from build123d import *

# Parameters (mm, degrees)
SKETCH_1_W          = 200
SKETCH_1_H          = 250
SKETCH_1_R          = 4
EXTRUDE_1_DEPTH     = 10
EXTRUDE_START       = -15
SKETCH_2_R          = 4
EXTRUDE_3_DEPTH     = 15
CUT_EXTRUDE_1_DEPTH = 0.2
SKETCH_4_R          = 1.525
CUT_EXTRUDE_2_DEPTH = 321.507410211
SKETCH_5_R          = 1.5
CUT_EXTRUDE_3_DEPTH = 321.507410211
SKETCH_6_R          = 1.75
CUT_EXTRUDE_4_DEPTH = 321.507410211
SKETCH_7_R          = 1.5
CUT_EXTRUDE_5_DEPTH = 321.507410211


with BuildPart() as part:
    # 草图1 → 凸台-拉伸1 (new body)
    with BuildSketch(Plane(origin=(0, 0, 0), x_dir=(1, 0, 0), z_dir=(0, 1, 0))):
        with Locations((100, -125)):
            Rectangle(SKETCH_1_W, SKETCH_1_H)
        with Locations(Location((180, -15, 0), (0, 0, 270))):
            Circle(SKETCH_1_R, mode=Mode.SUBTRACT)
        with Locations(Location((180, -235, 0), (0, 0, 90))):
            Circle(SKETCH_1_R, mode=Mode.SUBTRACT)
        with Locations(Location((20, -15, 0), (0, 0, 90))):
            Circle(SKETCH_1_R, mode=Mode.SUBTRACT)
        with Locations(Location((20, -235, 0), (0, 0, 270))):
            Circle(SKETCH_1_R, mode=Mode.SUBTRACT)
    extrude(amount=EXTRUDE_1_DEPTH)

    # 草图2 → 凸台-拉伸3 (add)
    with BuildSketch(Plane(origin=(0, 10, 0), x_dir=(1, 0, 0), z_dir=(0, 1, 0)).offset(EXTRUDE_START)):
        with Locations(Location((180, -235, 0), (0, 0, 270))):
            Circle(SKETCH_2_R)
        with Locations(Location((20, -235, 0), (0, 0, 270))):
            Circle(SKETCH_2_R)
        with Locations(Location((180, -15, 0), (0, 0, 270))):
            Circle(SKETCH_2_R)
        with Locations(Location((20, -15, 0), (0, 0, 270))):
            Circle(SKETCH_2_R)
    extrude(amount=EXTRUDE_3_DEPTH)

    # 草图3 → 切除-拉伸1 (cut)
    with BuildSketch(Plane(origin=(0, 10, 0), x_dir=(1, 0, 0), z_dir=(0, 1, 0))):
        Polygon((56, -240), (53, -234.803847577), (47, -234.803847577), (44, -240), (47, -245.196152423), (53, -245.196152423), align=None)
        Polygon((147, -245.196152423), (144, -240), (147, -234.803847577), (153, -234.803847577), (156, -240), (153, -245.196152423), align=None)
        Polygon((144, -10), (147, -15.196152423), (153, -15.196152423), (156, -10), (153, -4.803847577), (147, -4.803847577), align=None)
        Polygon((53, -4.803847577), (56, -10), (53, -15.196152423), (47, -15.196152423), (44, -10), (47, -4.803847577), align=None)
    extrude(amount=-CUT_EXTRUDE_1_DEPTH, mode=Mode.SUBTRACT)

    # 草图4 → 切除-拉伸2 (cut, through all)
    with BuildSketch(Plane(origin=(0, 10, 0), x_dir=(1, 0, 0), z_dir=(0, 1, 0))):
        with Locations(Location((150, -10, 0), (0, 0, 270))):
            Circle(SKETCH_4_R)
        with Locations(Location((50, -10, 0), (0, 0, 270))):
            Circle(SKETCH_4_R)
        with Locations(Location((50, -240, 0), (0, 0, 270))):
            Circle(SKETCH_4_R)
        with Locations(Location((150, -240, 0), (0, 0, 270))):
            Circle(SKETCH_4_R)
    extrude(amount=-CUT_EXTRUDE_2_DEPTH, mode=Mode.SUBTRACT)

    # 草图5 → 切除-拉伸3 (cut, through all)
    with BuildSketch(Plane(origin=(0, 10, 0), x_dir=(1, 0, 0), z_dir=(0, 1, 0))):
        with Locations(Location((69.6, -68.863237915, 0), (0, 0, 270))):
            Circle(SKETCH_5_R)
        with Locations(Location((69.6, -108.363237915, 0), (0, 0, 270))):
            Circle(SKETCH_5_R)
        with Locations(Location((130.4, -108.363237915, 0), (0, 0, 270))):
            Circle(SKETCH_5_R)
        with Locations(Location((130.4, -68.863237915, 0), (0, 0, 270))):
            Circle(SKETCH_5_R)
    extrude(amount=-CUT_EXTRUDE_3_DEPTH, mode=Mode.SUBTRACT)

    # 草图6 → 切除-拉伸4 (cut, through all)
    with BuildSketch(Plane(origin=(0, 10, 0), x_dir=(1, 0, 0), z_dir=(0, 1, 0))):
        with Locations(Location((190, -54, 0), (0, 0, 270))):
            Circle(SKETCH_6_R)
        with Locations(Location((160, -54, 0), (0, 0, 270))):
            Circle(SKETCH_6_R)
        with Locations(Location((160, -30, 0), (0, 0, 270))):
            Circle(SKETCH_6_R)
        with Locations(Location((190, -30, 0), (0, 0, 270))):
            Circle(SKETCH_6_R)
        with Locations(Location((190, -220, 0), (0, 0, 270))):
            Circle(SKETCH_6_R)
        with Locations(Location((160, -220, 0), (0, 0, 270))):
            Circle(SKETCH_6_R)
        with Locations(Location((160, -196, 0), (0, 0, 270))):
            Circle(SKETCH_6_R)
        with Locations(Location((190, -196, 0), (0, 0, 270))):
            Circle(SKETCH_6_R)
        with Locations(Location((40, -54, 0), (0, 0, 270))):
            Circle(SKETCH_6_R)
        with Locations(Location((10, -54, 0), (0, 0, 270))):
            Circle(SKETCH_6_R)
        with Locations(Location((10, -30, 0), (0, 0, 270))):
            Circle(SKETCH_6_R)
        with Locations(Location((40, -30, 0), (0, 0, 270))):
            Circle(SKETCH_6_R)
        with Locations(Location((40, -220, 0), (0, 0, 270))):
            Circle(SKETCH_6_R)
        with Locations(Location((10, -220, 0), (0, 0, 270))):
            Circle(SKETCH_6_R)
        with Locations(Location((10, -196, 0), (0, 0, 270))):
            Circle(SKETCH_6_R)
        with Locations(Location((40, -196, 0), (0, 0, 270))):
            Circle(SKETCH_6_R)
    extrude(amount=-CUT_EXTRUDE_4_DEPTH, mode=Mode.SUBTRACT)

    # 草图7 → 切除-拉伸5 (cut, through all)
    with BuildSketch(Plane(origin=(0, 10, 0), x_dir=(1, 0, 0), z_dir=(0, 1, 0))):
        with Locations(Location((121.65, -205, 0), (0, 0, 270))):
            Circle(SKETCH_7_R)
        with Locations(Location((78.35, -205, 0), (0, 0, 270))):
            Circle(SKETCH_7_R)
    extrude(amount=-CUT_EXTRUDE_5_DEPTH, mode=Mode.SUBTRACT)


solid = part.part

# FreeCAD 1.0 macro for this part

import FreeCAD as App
import Part
import Sketcher

V = App.Vector
Q = App.Units.Quantity


def add_polygon(sketch, points):
    """Adds a closed chain of lines whose ends are joined by coincident constraints."""
    first, n = sketch.GeometryCount, len(points)
    for a, b in zip(points, points[1:] + points[:1]):
        sketch.addGeometry(Part.LineSegment(App.Vector(*a, 0), App.Vector(*b, 0)), False)
    for i in range(n):
        sketch.addConstraint(Sketcher.Constraint("Coincident", first + i, 2, first + (i + 1) % n, 1))

doc = App.newDocument("Part")
body = doc.addObject("PartDesign::Body", "Body")

sketch1 = body.newObject("Sketcher::SketchObject", "Sketch")
sketch1.AttachmentSupport = (doc.getObject("XZ_Plane"), [""])
sketch1.MapMode = "FlatFace"
add_polygon(sketch1, [(0, 0), (0, 250), (200, 250), (200, 0)])
sketch1.addGeometry(Part.Circle(V(20, 235, 0), V(0, 0, 1), 4), False)
sketch1.addGeometry(Part.Circle(V(180, 235, 0), V(0, 0, 1), 4), False)
sketch1.addGeometry(Part.Circle(V(20, 15, 0), V(0, 0, 1), 4), False)
sketch1.addGeometry(Part.Circle(V(180, 15, 0), V(0, 0, 1), 4), False)
sketch1.addConstraint([
    Sketcher.Constraint("Vertical", 0),
    Sketcher.Constraint("Horizontal", 1),
    Sketcher.Constraint("Vertical", 2),
    Sketcher.Constraint("Horizontal", 3),
    Sketcher.Constraint("Coincident", 3, 2, -1, 1),
    Sketcher.Constraint("Equal", 4, 5),
    Sketcher.Constraint("Equal", 5, 6),
    Sketcher.Constraint("Equal", 6, 7),
    Sketcher.Constraint("Horizontal", 4, 3, 5, 3),
    Sketcher.Constraint("Horizontal", 6, 3, 7, 3),
    Sketcher.Constraint("Vertical", 4, 3, 6, 3),
    Sketcher.Constraint("Vertical", 5, 3, 7, 3),
    Sketcher.Constraint("Diameter", 4, Q("8 mm")),
    Sketcher.Constraint("DistanceX", 1, 1, 1, 2, Q("200 mm")),
    Sketcher.Constraint("DistanceY", 0, 1, 0, 2, Q("250 mm")),
    Sketcher.Constraint("DistanceX", -1, 1, 4, 3, Q("20 mm")),
    Sketcher.Constraint("DistanceY", -1, 1, 4, 3, Q("235 mm")),
    Sketcher.Constraint("DistanceX", -1, 1, 5, 3, Q("180 mm")),
    Sketcher.Constraint("DistanceY", -1, 1, 6, 3, Q("15 mm")),
])
pad1 = body.newObject("PartDesign::Pad", "Pad")
pad1.Profile = sketch1
pad1.Length = 10
pad1.Reversed = True

sketch2 = body.newObject("Sketcher::SketchObject", "Sketch001")
sketch2.AttachmentSupport = (doc.getObject("XZ_Plane"), [""])
sketch2.MapMode = "FlatFace"
sketch2.AttachmentOffset = App.Placement(V(0, 0, 5), App.Rotation())
sketch2.addGeometry([
    Part.Circle(V(180, 235, 0), V(0, 0, 1), 4),
    Part.Circle(V(20, 235, 0), V(0, 0, 1), 4),
    Part.Circle(V(180, 15, 0), V(0, 0, 1), 4),
    Part.Circle(V(20, 15, 0), V(0, 0, 1), 4),
], False)
sketch2.addConstraint([
    Sketcher.Constraint("Equal", 0, 1),
    Sketcher.Constraint("Equal", 1, 2),
    Sketcher.Constraint("Equal", 2, 3),
    Sketcher.Constraint("Horizontal", 0, 3, 1, 3),
    Sketcher.Constraint("Horizontal", 2, 3, 3, 3),
    Sketcher.Constraint("Vertical", 0, 3, 2, 3),
    Sketcher.Constraint("Vertical", 1, 3, 3, 3),
    Sketcher.Constraint("Diameter", 0, Q("8 mm")),
    Sketcher.Constraint("DistanceX", -1, 1, 0, 3, Q("180 mm")),
    Sketcher.Constraint("DistanceY", -1, 1, 0, 3, Q("235 mm")),
    Sketcher.Constraint("DistanceX", -1, 1, 1, 3, Q("20 mm")),
    Sketcher.Constraint("DistanceY", -1, 1, 2, 3, Q("15 mm")),
])
pad2 = body.newObject("PartDesign::Pad", "Pad001")
pad2.Profile = sketch2
pad2.Length = 15
pad2.Reversed = True

sketch3 = body.newObject("Sketcher::SketchObject", "Sketch002")
sketch3.AttachmentSupport = (doc.getObject("XZ_Plane"), [""])
sketch3.MapMode = "FlatFace"
sketch3.AttachmentOffset = App.Placement(V(0, 0, -10), App.Rotation())
add_polygon(sketch3, [(56, 240), (53, 234.803848), (47, 234.803848), (44, 240), (47, 245.196152), (53, 245.196152)])
add_polygon(sketch3, [(144, 240), (147, 245.196152), (153, 245.196152), (156, 240), (153, 234.803848), (147, 234.803848)])
add_polygon(sketch3, [(144, 10), (147, 15.196152), (153, 15.196152), (156, 10), (153, 4.803848), (147, 4.803848)])
add_polygon(sketch3, [(56, 10), (53, 4.803848), (47, 4.803848), (44, 10), (47, 15.196152), (53, 15.196152)])
sketch3.addConstraint([
    Sketcher.Constraint("Horizontal", 1),
    Sketcher.Constraint("Horizontal", 4),
    Sketcher.Constraint("Horizontal", 7),
    Sketcher.Constraint("Horizontal", 10),
    Sketcher.Constraint("Horizontal", 13),
    Sketcher.Constraint("Horizontal", 16),
    Sketcher.Constraint("Horizontal", 19),
    Sketcher.Constraint("Horizontal", 22),
    Sketcher.Constraint("Parallel", 0, 3),
    Sketcher.Constraint("Parallel", 2, 5),
    Sketcher.Constraint("Parallel", 3, 6),
    Sketcher.Constraint("Parallel", 5, 8),
    Sketcher.Constraint("Parallel", 6, 9),
    Sketcher.Constraint("Parallel", 8, 11),
    Sketcher.Constraint("Parallel", 9, 12),
    Sketcher.Constraint("Parallel", 11, 14),
    Sketcher.Constraint("Parallel", 12, 15),
    Sketcher.Constraint("Parallel", 14, 17),
    Sketcher.Constraint("Parallel", 15, 18),
    Sketcher.Constraint("Parallel", 17, 20),
    Sketcher.Constraint("Parallel", 18, 21),
    Sketcher.Constraint("Parallel", 20, 23),
    Sketcher.Constraint("Horizontal", 2, 2, 5, 2),
    Sketcher.Constraint("Horizontal", 4, 2, 6, 2),
    Sketcher.Constraint("Horizontal", 5, 2, 8, 2),
    Sketcher.Constraint("Horizontal", 1, 2, 9, 2),
    Sketcher.Constraint("Horizontal", 8, 2, 11, 2),
    Sketcher.Constraint("Horizontal", 14, 2, 17, 2),
    Sketcher.Constraint("Horizontal", 16, 2, 18, 2),
    Sketcher.Constraint("Horizontal", 17, 2, 20, 2),
    Sketcher.Constraint("Horizontal", 13, 2, 21, 2),
    Sketcher.Constraint("Horizontal", 20, 2, 23, 2),
    Sketcher.Constraint("Vertical", 1, 2, 3, 2),
    Sketcher.Constraint("Vertical", 0, 2, 4, 2),
    Sketcher.Constraint("Vertical", 10, 2, 12, 2),
    Sketcher.Constraint("Vertical", 9, 2, 13, 2),
    Sketcher.Constraint("Vertical", 8, 2, 14, 2),
    Sketcher.Constraint("Vertical", 13, 2, 15, 2),
    Sketcher.Constraint("Vertical", 4, 2, 18, 2),
    Sketcher.Constraint("Vertical", 3, 2, 19, 2),
    Sketcher.Constraint("Equal", 4, 7),
    Sketcher.Constraint("DistanceX", 1, 2, 1, 1, Q("6 mm")),
    Sketcher.Constraint("Angle", 0, Q("-120 deg")),
    Sketcher.Constraint("Distance", 0, Q("6 mm")),
    Sketcher.Constraint("DistanceX", -1, 1, 0, 2, Q("53 mm")),
    Sketcher.Constraint("DistanceY", -1, 1, 2, 2, Q("240 mm")),
    Sketcher.Constraint("DistanceX", -1, 1, 6, 2, Q("147 mm")),
    Sketcher.Constraint("DistanceY", -1, 1, 14, 2, Q("10 mm")),
])
pocket1 = body.newObject("PartDesign::Pocket", "Pocket")
pocket1.Profile = sketch3
pocket1.Length = 0.2
pocket1.Reversed = True

sketch4 = body.newObject("Sketcher::SketchObject", "Sketch003")
sketch4.AttachmentSupport = (doc.getObject("XZ_Plane"), [""])
sketch4.MapMode = "FlatFace"
sketch4.AttachmentOffset = App.Placement(V(0, 0, -10), App.Rotation())
sketch4.addGeometry([
    Part.Circle(V(150, 10, 0), V(0, 0, 1), 1.525),
    Part.Circle(V(50, 10, 0), V(0, 0, 1), 1.525),
    Part.Circle(V(50, 240, 0), V(0, 0, 1), 1.525),
    Part.Circle(V(150, 240, 0), V(0, 0, 1), 1.525),
], False)
sketch4.addConstraint([
    Sketcher.Constraint("Equal", 0, 1),
    Sketcher.Constraint("Equal", 1, 2),
    Sketcher.Constraint("Equal", 2, 3),
    Sketcher.Constraint("Horizontal", 0, 3, 1, 3),
    Sketcher.Constraint("Horizontal", 2, 3, 3, 3),
    Sketcher.Constraint("Vertical", 1, 3, 2, 3),
    Sketcher.Constraint("Vertical", 0, 3, 3, 3),
    Sketcher.Constraint("Diameter", 0, Q("3.05 mm")),
    Sketcher.Constraint("DistanceX", -1, 1, 0, 3, Q("150 mm")),
    Sketcher.Constraint("DistanceY", -1, 1, 0, 3, Q("10 mm")),
    Sketcher.Constraint("DistanceX", -1, 1, 1, 3, Q("50 mm")),
    Sketcher.Constraint("DistanceY", -1, 1, 2, 3, Q("240 mm")),
])
pocket2 = body.newObject("PartDesign::Pocket", "Pocket001")
pocket2.Profile = sketch4
pocket2.Type = "ThroughAll"
pocket2.Reversed = True

sketch5 = body.newObject("Sketcher::SketchObject", "Sketch004")
sketch5.AttachmentSupport = (doc.getObject("XZ_Plane"), [""])
sketch5.MapMode = "FlatFace"
sketch5.AttachmentOffset = App.Placement(V(0, 0, -10), App.Rotation())
sketch5.addGeometry([
    Part.Circle(V(69.6, 68.863238, 0), V(0, 0, 1), 1.5),
    Part.Circle(V(69.6, 108.363238, 0), V(0, 0, 1), 1.5),
    Part.Circle(V(130.4, 108.363238, 0), V(0, 0, 1), 1.5),
    Part.Circle(V(130.4, 68.863238, 0), V(0, 0, 1), 1.5),
], False)
sketch5.addConstraint([
    Sketcher.Constraint("Equal", 0, 1),
    Sketcher.Constraint("Equal", 1, 2),
    Sketcher.Constraint("Equal", 2, 3),
    Sketcher.Constraint("Horizontal", 1, 3, 2, 3),
    Sketcher.Constraint("Horizontal", 0, 3, 3, 3),
    Sketcher.Constraint("Vertical", 0, 3, 1, 3),
    Sketcher.Constraint("Vertical", 2, 3, 3, 3),
    Sketcher.Constraint("Diameter", 0, Q("3 mm")),
    Sketcher.Constraint("DistanceX", -1, 1, 0, 3, Q("69.6 mm")),
    Sketcher.Constraint("DistanceX", -1, 1, 2, 3, Q("130.4 mm")),
    Sketcher.Constraint("DistanceY", 0, 3, 1, 3, Q("39.5 mm")),
    Sketcher.Constraint("DistanceY", -1, 1, 0, 3, Q("68.863238 mm")),
])
pocket3 = body.newObject("PartDesign::Pocket", "Pocket002")
pocket3.Profile = sketch5
pocket3.Type = "ThroughAll"
pocket3.Reversed = True

sketch6 = body.newObject("Sketcher::SketchObject", "Sketch005")
sketch6.AttachmentSupport = (doc.getObject("XZ_Plane"), [""])
sketch6.MapMode = "FlatFace"
sketch6.AttachmentOffset = App.Placement(V(0, 0, -10), App.Rotation())
sketch6.addGeometry([
    Part.Circle(V(190, 54, 0), V(0, 0, 1), 1.75),
    Part.Circle(V(160, 54, 0), V(0, 0, 1), 1.75),
    Part.Circle(V(160, 30, 0), V(0, 0, 1), 1.75),
    Part.Circle(V(190, 30, 0), V(0, 0, 1), 1.75),
    Part.Circle(V(190, 220, 0), V(0, 0, 1), 1.75),
    Part.Circle(V(160, 220, 0), V(0, 0, 1), 1.75),
    Part.Circle(V(160, 196, 0), V(0, 0, 1), 1.75),
    Part.Circle(V(190, 196, 0), V(0, 0, 1), 1.75),
    Part.Circle(V(40, 54, 0), V(0, 0, 1), 1.75),
    Part.Circle(V(10, 54, 0), V(0, 0, 1), 1.75),
    Part.Circle(V(10, 30, 0), V(0, 0, 1), 1.75),
    Part.Circle(V(40, 30, 0), V(0, 0, 1), 1.75),
    Part.Circle(V(40, 220, 0), V(0, 0, 1), 1.75),
    Part.Circle(V(10, 220, 0), V(0, 0, 1), 1.75),
    Part.Circle(V(10, 196, 0), V(0, 0, 1), 1.75),
    Part.Circle(V(40, 196, 0), V(0, 0, 1), 1.75),
], False)
sketch6.addConstraint([
    Sketcher.Constraint("Equal", 0, 1),
    Sketcher.Constraint("Equal", 1, 2),
    Sketcher.Constraint("Equal", 2, 3),
    Sketcher.Constraint("Equal", 3, 4),
    Sketcher.Constraint("Equal", 4, 5),
    Sketcher.Constraint("Equal", 5, 6),
    Sketcher.Constraint("Equal", 6, 7),
    Sketcher.Constraint("Equal", 7, 8),
    Sketcher.Constraint("Equal", 8, 9),
    Sketcher.Constraint("Equal", 9, 10),
    Sketcher.Constraint("Equal", 10, 11),
    Sketcher.Constraint("Equal", 11, 12),
    Sketcher.Constraint("Equal", 12, 13),
    Sketcher.Constraint("Equal", 13, 14),
    Sketcher.Constraint("Equal", 14, 15),
    Sketcher.Constraint("Horizontal", 0, 3, 1, 3),
    Sketcher.Constraint("Horizontal", 2, 3, 3, 3),
    Sketcher.Constraint("Horizontal", 4, 3, 5, 3),
    Sketcher.Constraint("Horizontal", 6, 3, 7, 3),
    Sketcher.Constraint("Horizontal", 1, 3, 8, 3),
    Sketcher.Constraint("Horizontal", 8, 3, 9, 3),
    Sketcher.Constraint("Horizontal", 3, 3, 10, 3),
    Sketcher.Constraint("Horizontal", 10, 3, 11, 3),
    Sketcher.Constraint("Horizontal", 5, 3, 12, 3),
    Sketcher.Constraint("Horizontal", 12, 3, 13, 3),
    Sketcher.Constraint("Horizontal", 7, 3, 14, 3),
    Sketcher.Constraint("Horizontal", 14, 3, 15, 3),
    Sketcher.Constraint("Vertical", 1, 3, 2, 3),
    Sketcher.Constraint("Vertical", 0, 3, 3, 3),
    Sketcher.Constraint("Vertical", 3, 3, 4, 3),
    Sketcher.Constraint("Vertical", 2, 3, 5, 3),
    Sketcher.Constraint("Vertical", 5, 3, 6, 3),
    Sketcher.Constraint("Vertical", 4, 3, 7, 3),
    Sketcher.Constraint("Vertical", 9, 3, 10, 3),
    Sketcher.Constraint("Vertical", 8, 3, 11, 3),
    Sketcher.Constraint("Vertical", 11, 3, 12, 3),
    Sketcher.Constraint("Vertical", 10, 3, 13, 3),
    Sketcher.Constraint("Vertical", 13, 3, 14, 3),
    Sketcher.Constraint("Vertical", 12, 3, 15, 3),
    Sketcher.Constraint("Diameter", 0, Q("3.5 mm")),
    Sketcher.Constraint("DistanceX", -1, 1, 0, 3, Q("190 mm")),
    Sketcher.Constraint("DistanceY", -1, 1, 0, 3, Q("54 mm")),
    Sketcher.Constraint("DistanceX", -1, 1, 1, 3, Q("160 mm")),
    Sketcher.Constraint("DistanceY", -1, 1, 2, 3, Q("30 mm")),
    Sketcher.Constraint("DistanceY", -1, 1, 4, 3, Q("220 mm")),
    Sketcher.Constraint("DistanceY", -1, 1, 6, 3, Q("196 mm")),
    Sketcher.Constraint("DistanceX", -1, 1, 8, 3, Q("40 mm")),
    Sketcher.Constraint("DistanceX", -1, 1, 9, 3, Q("10 mm")),
])
pocket4 = body.newObject("PartDesign::Pocket", "Pocket003")
pocket4.Profile = sketch6
pocket4.Type = "ThroughAll"
pocket4.Reversed = True

sketch7 = body.newObject("Sketcher::SketchObject", "Sketch006")
sketch7.AttachmentSupport = (doc.getObject("XZ_Plane"), [""])
sketch7.MapMode = "FlatFace"
sketch7.AttachmentOffset = App.Placement(V(0, 0, -10), App.Rotation())
sketch7.addGeometry([
    Part.Circle(V(121.65, 205, 0), V(0, 0, 1), 1.5),
    Part.Circle(V(78.35, 205, 0), V(0, 0, 1), 1.5),
], False)
sketch7.addConstraint([
    Sketcher.Constraint("Equal", 0, 1),
    Sketcher.Constraint("Horizontal", 0, 3, 1, 3),
    Sketcher.Constraint("Diameter", 0, Q("3 mm")),
    Sketcher.Constraint("DistanceY", -1, 1, 0, 3, Q("205 mm")),
    Sketcher.Constraint("DistanceX", 1, 3, 0, 3, Q("43.3 mm")),
    Sketcher.Constraint("DistanceX", -1, 1, 0, 3, Q("121.65 mm")),
])
pocket5 = body.newObject("PartDesign::Pocket", "Pocket004")
pocket5.Profile = sketch7
pocket5.Type = "ThroughAll"
pocket5.Reversed = True

doc.recompute()
